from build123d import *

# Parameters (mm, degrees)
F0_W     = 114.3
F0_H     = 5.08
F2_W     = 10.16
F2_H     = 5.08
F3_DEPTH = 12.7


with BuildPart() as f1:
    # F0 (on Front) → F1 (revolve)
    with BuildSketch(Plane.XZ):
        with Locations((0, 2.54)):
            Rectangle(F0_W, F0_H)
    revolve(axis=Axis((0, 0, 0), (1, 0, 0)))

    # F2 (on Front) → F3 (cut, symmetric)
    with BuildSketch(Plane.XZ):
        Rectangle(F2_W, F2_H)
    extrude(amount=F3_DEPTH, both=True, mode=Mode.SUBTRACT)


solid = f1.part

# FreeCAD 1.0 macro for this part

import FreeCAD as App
import Part
import Sketcher
Q = App.Units.Quantity

doc = App.newDocument("Part")
params = doc.addObject("Spreadsheet::Sheet", "Params")
for row, (alias, value) in enumerate([
    ("sketch1_width", "4.5 in"),
    ("sketch1_height", "0.2 in"),
    ("revolution_angle", "360 deg"),
    ("sketch2_width", "0.4 in"),
    ("sketch2_height", "0.2 in"),
    ("pocket1_length", "1 in"),
], start=1):
    params.set(f"A{row}", alias)
    params.set(f"B{row}", "=" + value)
    params.setAlias(f"B{row}", alias)

body = doc.addObject("PartDesign::Body", "Body")

sketch1 = body.newObject("Sketcher::SketchObject", "Sketch")
sketch1.AttachmentSupport = (doc.getObject("XZ_Plane"), [""])
sketch1.MapMode = "FlatFace"
sketch1.addGeometry(Part.LineSegment(App.Vector(-57, 5, 0), App.Vector(-57, 0, 0)), False)
sketch1.addGeometry(Part.LineSegment(App.Vector(-57, 0, 0), App.Vector(57, 0, 0)), False)
sketch1.addGeometry(Part.LineSegment(App.Vector(57, 0, 0), App.Vector(57, 5, 0)), False)
sketch1.addGeometry(Part.LineSegment(App.Vector(57, 5, 0), App.Vector(-57, 5, 0)), False)
sketch1.addConstraint(Sketcher.Constraint("Coincident", 0, 2, 1, 1))
sketch1.addConstraint(Sketcher.Constraint("Coincident", 1, 2, 2, 1))
sketch1.addConstraint(Sketcher.Constraint("Coincident", 2, 2, 3, 1))
sketch1.addConstraint(Sketcher.Constraint("Coincident", 3, 2, 0, 1))
sketch1.addConstraint(Sketcher.Constraint("Vertical", 0))
sketch1.addConstraint(Sketcher.Constraint("Horizontal", 1))
sketch1.addConstraint(Sketcher.Constraint("Vertical", 2))
sketch1.addConstraint(Sketcher.Constraint("Horizontal", 3))
sketch1.addConstraint(Sketcher.Constraint("Symmetric", 0, 2, 1, 2, -1, 1))
sketch1.addConstraint(Sketcher.Constraint("DistanceX", 1, 1, 1, 2, Q("4.5 in")))
sketch1.addConstraint(Sketcher.Constraint("DistanceY", 0, 2, 0, 1, Q("0.2 in")))
sketch1.setExpression("Constraints[9]", "Params.sketch1_width")
sketch1.setExpression("Constraints[10]", "Params.sketch1_height")
revolution = body.newObject("PartDesign::Revolution", "Revolution")
revolution.Profile = sketch1
revolution.ReferenceAxis = (sketch1, ["H_Axis"])
revolution.setExpression("Angle", "Params.revolution_angle")

sketch2 = body.newObject("Sketcher::SketchObject", "Sketch001")
sketch2.AttachmentSupport = (doc.getObject("XZ_Plane"), [""])
sketch2.MapMode = "FlatFace"
sketch2.addGeometry(Part.LineSegment(App.Vector(-5, 3, 0), App.Vector(-5, -3, 0)), False)
sketch2.addGeometry(Part.LineSegment(App.Vector(-5, -3, 0), App.Vector(5, -3, 0)), False)
sketch2.addGeometry(Part.LineSegment(App.Vector(5, -3, 0), App.Vector(5, 3, 0)), False)
sketch2.addGeometry(Part.LineSegment(App.Vector(5, 3, 0), App.Vector(-5, 3, 0)), False)
sketch2.addConstraint(Sketcher.Constraint("Coincident", 0, 2, 1, 1))
sketch2.addConstraint(Sketcher.Constraint("Coincident", 1, 2, 2, 1))
sketch2.addConstraint(Sketcher.Constraint("Coincident", 2, 2, 3, 1))
sketch2.addConstraint(Sketcher.Constraint("Coincident", 3, 2, 0, 1))
sketch2.addConstraint(Sketcher.Constraint("Vertical", 0))
sketch2.addConstraint(Sketcher.Constraint("Horizontal", 1))
sketch2.addConstraint(Sketcher.Constraint("Vertical", 2))
sketch2.addConstraint(Sketcher.Constraint("Horizontal", 3))
sketch2.addConstraint(Sketcher.Constraint("Symmetric", 0, 2, 2, 2, -1, 1))
sketch2.addConstraint(Sketcher.Constraint("DistanceX", 1, 1, 1, 2, Q("0.4 in")))
sketch2.addConstraint(Sketcher.Constraint("DistanceY", 0, 2, 0, 1, Q("0.2 in")))
sketch2.setExpression("Constraints[9]", "Params.sketch2_width")
sketch2.setExpression("Constraints[10]", "Params.sketch2_height")
pocket1 = body.newObject("PartDesign::Pocket", "Pocket")
pocket1.Profile = sketch2
pocket1.setExpression("Length", "Params.pocket1_length")
pocket1.Midplane = True

doc.recompute()
